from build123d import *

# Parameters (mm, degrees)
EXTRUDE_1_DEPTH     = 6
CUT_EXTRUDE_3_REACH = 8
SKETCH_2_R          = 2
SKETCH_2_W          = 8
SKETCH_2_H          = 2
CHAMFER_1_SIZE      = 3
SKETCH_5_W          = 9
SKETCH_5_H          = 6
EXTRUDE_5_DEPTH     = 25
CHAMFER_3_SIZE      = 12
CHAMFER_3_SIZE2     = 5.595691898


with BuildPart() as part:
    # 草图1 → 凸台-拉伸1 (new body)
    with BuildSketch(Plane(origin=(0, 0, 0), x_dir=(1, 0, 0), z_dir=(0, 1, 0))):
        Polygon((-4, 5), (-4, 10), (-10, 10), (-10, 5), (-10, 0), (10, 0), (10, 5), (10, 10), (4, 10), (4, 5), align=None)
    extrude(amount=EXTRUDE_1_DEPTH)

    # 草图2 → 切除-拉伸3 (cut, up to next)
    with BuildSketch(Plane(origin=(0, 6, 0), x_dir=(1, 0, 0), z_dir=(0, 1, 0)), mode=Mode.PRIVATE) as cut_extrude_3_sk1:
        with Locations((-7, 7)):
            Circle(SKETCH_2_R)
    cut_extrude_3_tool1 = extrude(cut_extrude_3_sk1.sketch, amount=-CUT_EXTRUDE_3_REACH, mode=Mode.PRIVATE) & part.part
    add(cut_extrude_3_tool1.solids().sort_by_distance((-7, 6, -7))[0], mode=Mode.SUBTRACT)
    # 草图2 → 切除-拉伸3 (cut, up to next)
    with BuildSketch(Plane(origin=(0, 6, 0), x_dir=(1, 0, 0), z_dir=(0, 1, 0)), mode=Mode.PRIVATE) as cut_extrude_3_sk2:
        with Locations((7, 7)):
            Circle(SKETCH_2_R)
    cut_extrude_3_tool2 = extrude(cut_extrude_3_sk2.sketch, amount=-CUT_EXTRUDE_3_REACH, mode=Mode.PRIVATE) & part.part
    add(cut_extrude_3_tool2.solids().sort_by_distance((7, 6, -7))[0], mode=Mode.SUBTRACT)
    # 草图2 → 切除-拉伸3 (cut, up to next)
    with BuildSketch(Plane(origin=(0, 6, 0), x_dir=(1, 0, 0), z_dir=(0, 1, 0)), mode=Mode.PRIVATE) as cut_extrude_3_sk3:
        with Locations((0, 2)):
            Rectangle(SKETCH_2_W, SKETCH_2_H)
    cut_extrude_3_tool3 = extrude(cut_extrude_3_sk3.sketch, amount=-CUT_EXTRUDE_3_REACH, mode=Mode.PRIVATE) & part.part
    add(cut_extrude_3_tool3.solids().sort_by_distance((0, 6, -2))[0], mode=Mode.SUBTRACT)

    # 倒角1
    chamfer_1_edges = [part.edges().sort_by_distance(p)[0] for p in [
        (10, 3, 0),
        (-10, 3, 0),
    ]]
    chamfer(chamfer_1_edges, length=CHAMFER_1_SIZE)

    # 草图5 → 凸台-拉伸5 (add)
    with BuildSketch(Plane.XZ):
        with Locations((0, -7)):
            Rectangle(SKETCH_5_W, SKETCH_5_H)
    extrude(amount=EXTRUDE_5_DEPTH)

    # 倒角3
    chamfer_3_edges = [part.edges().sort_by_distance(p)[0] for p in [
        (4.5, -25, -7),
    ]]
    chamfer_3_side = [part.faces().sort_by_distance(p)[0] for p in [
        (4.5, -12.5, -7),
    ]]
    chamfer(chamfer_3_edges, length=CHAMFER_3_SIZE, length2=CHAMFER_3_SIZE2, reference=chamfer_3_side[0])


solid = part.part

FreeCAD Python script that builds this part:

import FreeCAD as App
import Part
import Sketcher
from FreeCAD import Vector
Q = App.Units.Quantity


def edges_at(feature, points):
    """Names of the edges that pass closest to the given points."""
    edges = feature.Shape.Edges
    near = lambda p: min(range(len(edges)), key=lambda i: edges[i].distToShape(Part.Vertex(*p))[0])
    return sorted({f"Edge{near(p) + 1}" for p in points})

doc = App.newDocument("Part")
params = doc.addObject("Spreadsheet::Sheet", "Params")
for row, (alias, value) in enumerate([
    ("sketch1_width", "6 mm"),
    ("sketch1_width2", "20 mm"),
    ("sketch1_height", "5 mm"),
    ("sketch1_height2", "10 mm"),
    ("pad1_length", "6 mm"),
    ("sketch2_diameter", "4 mm"),
    ("sketch3_diameter", "4 mm"),
    ("sketch4_width", "8 mm"),
    ("sketch4_height", "2 mm"),
    ("chamfer_size", "3 mm"),
    ("sketch5_width", "9 mm"),
    ("sketch5_height", "6 mm"),
    ("pad2_length", "25 mm"),
    ("chamfer2_size", "12 mm"),
    ("chamfer2_size2", "5.595692 mm"),
], start=1):
    params.set(f"A{row}", alias)
    params.set(f"B{row}", "=" + value)
    params.setAlias(f"B{row}", alias)

body = doc.addObject("PartDesign::Body", "Body")

# Sketch on XZ plane
sketch1 = doc.addObject("Sketcher::SketchObject", "Sketch")
body.addObject(sketch1)
sketch1.AttachmentSupport = (doc.XZ_Plane, [""])
sketch1.MapMode = "FlatFace"
sketch1.addGeometry([
    Part.LineSegment(Vector(-4, -5, 0), Vector(-4, -10, 0)),  # 0
    Part.LineSegment(Vector(-4, -10, 0), Vector(-10, -10, 0)),  # 1
    Part.LineSegment(Vector(-10, -10, 0), Vector(-10, 0, 0)),  # 2
    Part.LineSegment(Vector(-10, 0, 0), Vector(10, 0, 0)),  # 3
    Part.LineSegment(Vector(10, 0, 0), Vector(10, -10, 0)),  # 4
    Part.LineSegment(Vector(10, -10, 0), Vector(4, -10, 0)),  # 5
    Part.LineSegment(Vector(4, -10, 0), Vector(4, -5, 0)),  # 6
    Part.LineSegment(Vector(4, -5, 0), Vector(-4, -5, 0)),  # 7
], False)
sketch1.addConstraint([
    Sketcher.Constraint("Coincident", 0, 2, 1, 1),
    Sketcher.Constraint("Coincident", 1, 2, 2, 1),
    Sketcher.Constraint("Coincident", 2, 2, 3, 1),
    Sketcher.Constraint("Coincident", 3, 2, 4, 1),
    Sketcher.Constraint("Coincident", 4, 2, 5, 1),
    Sketcher.Constraint("Coincident", 5, 2, 6, 1),
    Sketcher.Constraint("Coincident", 6, 2, 7, 1),
    Sketcher.Constraint("Coincident", 7, 2, 0, 1),
    Sketcher.Constraint("Vertical", 0),
    Sketcher.Constraint("Horizontal", 1),
    Sketcher.Constraint("Vertical", 2),
    Sketcher.Constraint("Horizontal", 3),
    Sketcher.Constraint("Vertical", 4),
    Sketcher.Constraint("Horizontal", 5),
    Sketcher.Constraint("Vertical", 6),
    Sketcher.Constraint("Horizontal", 7),
    Sketcher.Constraint("Symmetric", 2, 2, 3, 2, -1, 1),
    Sketcher.Constraint("Symmetric", 0, 2, 5, 2, -2),
    Sketcher.Constraint("DistanceX", 1, 2, 1, 1, Q("6 mm")),
    Sketcher.Constraint("DistanceX", 3, 1, 3, 2, Q("20 mm")),
    Sketcher.Constraint("DistanceY", 0, 2, 0, 1, Q("5 mm")),
    Sketcher.Constraint("DistanceY", 2, 1, 2, 2, Q("10 mm")),
])
sketch1.setExpression("Constraints[18]", "Params.sketch1_width")
sketch1.setExpression("Constraints[19]", "Params.sketch1_width2")
sketch1.setExpression("Constraints[20]", "Params.sketch1_height")
sketch1.setExpression("Constraints[21]", "Params.sketch1_height2")
pad1 = doc.addObject("PartDesign::Pad", "Pad")
body.addObject(pad1)
pad1.Profile = sketch1
pad1.setExpression("Length", "Params.pad1_length")
pad1.Reversed = True

# Sketch on XZ plane
sketch2 = doc.addObject("Sketcher::SketchObject", "Sketch001")
body.addObject(sketch2)
sketch2.AttachmentSupport = (doc.XZ_Plane, [""])
sketch2.MapMode = "FlatFace"
sketch2.AttachmentOffset = App.Placement(Vector(0, 0, -6), App.Rotation())
sketch2.addGeometry(Part.Circle(Vector(-7, -7, 0), Vector(0, 0, 1), 2), False)
sketch2.addConstraint([
    Sketcher.Constraint("Diameter", 0, Q("4 mm")),
    Sketcher.Constraint("DistanceX", 0, 3, -1, 1, Q("7 mm")),
    Sketcher.Constraint("DistanceY", 0, 3, -1, 1, Q("7 mm")),
])
sketch2.setExpression("Constraints[0]", "Params.sketch2_diameter")
pocket1 = doc.addObject("PartDesign::Pocket", "Pocket")
body.addObject(pocket1)
pocket1.Profile = sketch2
pocket1.Type = "UpToFirst"
pocket1.Reversed = True

# Sketch on XZ plane
sketch3 = doc.addObject("Sketcher::SketchObject", "Sketch002")
body.addObject(sketch3)
sketch3.AttachmentSupport = (doc.XZ_Plane, [""])
sketch3.MapMode = "FlatFace"
sketch3.AttachmentOffset = App.Placement(Vector(0, 0, -6), App.Rotation())
sketch3.addGeometry(Part.Circle(Vector(7, -7, 0), Vector(0, 0, 1), 2), False)
sketch3.addConstraint([
    Sketcher.Constraint("Diameter", 0, Q("4 mm")),
    Sketcher.Constraint("DistanceX", -1, 1, 0, 3, Q("7 mm")),
    Sketcher.Constraint("DistanceY", 0, 3, -1, 1, Q("7 mm")),
])
sketch3.setExpression("Constraints[0]", "Params.sketch3_diameter")
pocket2 = doc.addObject("PartDesign::Pocket", "Pocket001")
body.addObject(pocket2)
pocket2.Profile = sketch3
pocket2.Type = "UpToFirst"
pocket2.Reversed = True

# Sketch on XZ plane
sketch4 = doc.addObject("Sketcher::SketchObject", "Sketch003")
body.addObject(sketch4)
sketch4.AttachmentSupport = (doc.XZ_Plane, [""])
sketch4.MapMode = "FlatFace"
sketch4.AttachmentOffset = App.Placement(Vector(0, 0, -6), App.Rotation())
sketch4.addGeometry([
    Part.LineSegment(Vector(-4, -3, 0), Vector(-4, -1, 0)),
    Part.LineSegment(Vector(-4, -1, 0), Vector(4, -1, 0)),
    Part.LineSegment(Vector(4, -1, 0), Vector(4, -3, 0)),
    Part.LineSegment(Vector(4, -3, 0), Vector(-4, -3, 0)),
], False)
sketch4.addConstraint([
    Sketcher.Constraint("Coincident", 0, 2, 1, 1),
    Sketcher.Constraint("Coincident", 1, 2, 2, 1),
    Sketcher.Constraint("Coincident", 2, 2, 3, 1),
    Sketcher.Constraint("Coincident", 3, 2, 0, 1),
    Sketcher.Constraint("Vertical", 0),
    Sketcher.Constraint("Horizontal", 1),
    Sketcher.Constraint("Vertical", 2),
    Sketcher.Constraint("Horizontal", 3),
    Sketcher.Constraint("DistanceX", 1, 1, 1, 2, Q("8 mm")),
    Sketcher.Constraint("DistanceY", 0, 1, 0, 2, Q("2 mm")),
    Sketcher.Constraint("DistanceX", 0, 2, -1, 1, Q("4 mm")),
    Sketcher.Constraint("DistanceY", 0, 2, -1, 1, Q("1 mm")),
])
sketch4.setExpression("Constraints[8]", "Params.sketch4_width")
sketch4.setExpression("Constraints[9]", "Params.sketch4_height")
pocket3 = doc.addObject("PartDesign::Pocket", "Pocket002")
body.addObject(pocket3)
pocket3.Profile = sketch4
pocket3.Type = "UpToFirst"
pocket3.Reversed = True
doc.recompute()

chamfer = doc.addObject("PartDesign::Chamfer", "Chamfer")
body.addObject(chamfer)
chamfer.Base = (pocket3, edges_at(pocket3, [(10, 3, 0), (-10, 3, 0)]))
chamfer.setExpression("Size", "Params.chamfer_size")

# Sketch on XZ plane
sketch5 = doc.addObject("Sketcher::SketchObject", "Sketch004")
body.addObject(sketch5)
sketch5.AttachmentSupport = (doc.XZ_Plane, [""])
sketch5.MapMode = "FlatFace"
sketch5.addGeometry([
    Part.LineSegment(Vector(-4, -4, 0), Vector(-4, -10, 0)),
    Part.LineSegment(Vector(-4, -10, 0), Vector(4, -10, 0)),
    Part.LineSegment(Vector(4, -10, 0), Vector(4, -4, 0)),
    Part.LineSegment(Vector(4, -4, 0), Vector(-4, -4, 0)),
], False)
sketch5.addConstraint([
    Sketcher.Constraint("Coincident", 0, 2, 1, 1),
    Sketcher.Constraint("Coincident", 1, 2, 2, 1),
    Sketcher.Constraint("Coincident", 2, 2, 3, 1),
    Sketcher.Constraint("Coincident", 3, 2, 0, 1),
    Sketcher.Constraint("Vertical", 0),
    Sketcher.Constraint("Horizontal", 1),
    Sketcher.Constraint("Vertical", 2),
    Sketcher.Constraint("Horizontal", 3),
    Sketcher.Constraint("DistanceX", 1, 1, 1, 2, Q("9 mm")),
    Sketcher.Constraint("DistanceY", 0, 2, 0, 1, Q("6 mm")),
    Sketcher.Constraint("DistanceY", 0, 2, -1, 1, Q("10 mm")),
    Sketcher.Constraint("DistanceX", 0, 2, -1, 1, Q("4.5 mm")),
])
sketch5.setExpression("Constraints[8]", "Params.sketch5_width")
sketch5.setExpression("Constraints[9]", "Params.sketch5_height")
pad2 = doc.addObject("PartDesign::Pad", "Pad001")
body.addObject(pad2)
pad2.Profile = sketch5
pad2.setExpression("Length", "Params.pad2_length")
doc.recompute()

chamfer2 = doc.addObject("PartDesign::Chamfer", "Chamfer001")
body.addObject(chamfer2)
chamfer2.Base = (pad2, edges_at(pad2, [(4.5, -25, -7)]))
chamfer2.ChamferType = "Two distances"
chamfer2.setExpression("Size", "Params.chamfer2_size")
chamfer2.setExpression("Size2", "Params.chamfer2_size2")

doc.recompute()
